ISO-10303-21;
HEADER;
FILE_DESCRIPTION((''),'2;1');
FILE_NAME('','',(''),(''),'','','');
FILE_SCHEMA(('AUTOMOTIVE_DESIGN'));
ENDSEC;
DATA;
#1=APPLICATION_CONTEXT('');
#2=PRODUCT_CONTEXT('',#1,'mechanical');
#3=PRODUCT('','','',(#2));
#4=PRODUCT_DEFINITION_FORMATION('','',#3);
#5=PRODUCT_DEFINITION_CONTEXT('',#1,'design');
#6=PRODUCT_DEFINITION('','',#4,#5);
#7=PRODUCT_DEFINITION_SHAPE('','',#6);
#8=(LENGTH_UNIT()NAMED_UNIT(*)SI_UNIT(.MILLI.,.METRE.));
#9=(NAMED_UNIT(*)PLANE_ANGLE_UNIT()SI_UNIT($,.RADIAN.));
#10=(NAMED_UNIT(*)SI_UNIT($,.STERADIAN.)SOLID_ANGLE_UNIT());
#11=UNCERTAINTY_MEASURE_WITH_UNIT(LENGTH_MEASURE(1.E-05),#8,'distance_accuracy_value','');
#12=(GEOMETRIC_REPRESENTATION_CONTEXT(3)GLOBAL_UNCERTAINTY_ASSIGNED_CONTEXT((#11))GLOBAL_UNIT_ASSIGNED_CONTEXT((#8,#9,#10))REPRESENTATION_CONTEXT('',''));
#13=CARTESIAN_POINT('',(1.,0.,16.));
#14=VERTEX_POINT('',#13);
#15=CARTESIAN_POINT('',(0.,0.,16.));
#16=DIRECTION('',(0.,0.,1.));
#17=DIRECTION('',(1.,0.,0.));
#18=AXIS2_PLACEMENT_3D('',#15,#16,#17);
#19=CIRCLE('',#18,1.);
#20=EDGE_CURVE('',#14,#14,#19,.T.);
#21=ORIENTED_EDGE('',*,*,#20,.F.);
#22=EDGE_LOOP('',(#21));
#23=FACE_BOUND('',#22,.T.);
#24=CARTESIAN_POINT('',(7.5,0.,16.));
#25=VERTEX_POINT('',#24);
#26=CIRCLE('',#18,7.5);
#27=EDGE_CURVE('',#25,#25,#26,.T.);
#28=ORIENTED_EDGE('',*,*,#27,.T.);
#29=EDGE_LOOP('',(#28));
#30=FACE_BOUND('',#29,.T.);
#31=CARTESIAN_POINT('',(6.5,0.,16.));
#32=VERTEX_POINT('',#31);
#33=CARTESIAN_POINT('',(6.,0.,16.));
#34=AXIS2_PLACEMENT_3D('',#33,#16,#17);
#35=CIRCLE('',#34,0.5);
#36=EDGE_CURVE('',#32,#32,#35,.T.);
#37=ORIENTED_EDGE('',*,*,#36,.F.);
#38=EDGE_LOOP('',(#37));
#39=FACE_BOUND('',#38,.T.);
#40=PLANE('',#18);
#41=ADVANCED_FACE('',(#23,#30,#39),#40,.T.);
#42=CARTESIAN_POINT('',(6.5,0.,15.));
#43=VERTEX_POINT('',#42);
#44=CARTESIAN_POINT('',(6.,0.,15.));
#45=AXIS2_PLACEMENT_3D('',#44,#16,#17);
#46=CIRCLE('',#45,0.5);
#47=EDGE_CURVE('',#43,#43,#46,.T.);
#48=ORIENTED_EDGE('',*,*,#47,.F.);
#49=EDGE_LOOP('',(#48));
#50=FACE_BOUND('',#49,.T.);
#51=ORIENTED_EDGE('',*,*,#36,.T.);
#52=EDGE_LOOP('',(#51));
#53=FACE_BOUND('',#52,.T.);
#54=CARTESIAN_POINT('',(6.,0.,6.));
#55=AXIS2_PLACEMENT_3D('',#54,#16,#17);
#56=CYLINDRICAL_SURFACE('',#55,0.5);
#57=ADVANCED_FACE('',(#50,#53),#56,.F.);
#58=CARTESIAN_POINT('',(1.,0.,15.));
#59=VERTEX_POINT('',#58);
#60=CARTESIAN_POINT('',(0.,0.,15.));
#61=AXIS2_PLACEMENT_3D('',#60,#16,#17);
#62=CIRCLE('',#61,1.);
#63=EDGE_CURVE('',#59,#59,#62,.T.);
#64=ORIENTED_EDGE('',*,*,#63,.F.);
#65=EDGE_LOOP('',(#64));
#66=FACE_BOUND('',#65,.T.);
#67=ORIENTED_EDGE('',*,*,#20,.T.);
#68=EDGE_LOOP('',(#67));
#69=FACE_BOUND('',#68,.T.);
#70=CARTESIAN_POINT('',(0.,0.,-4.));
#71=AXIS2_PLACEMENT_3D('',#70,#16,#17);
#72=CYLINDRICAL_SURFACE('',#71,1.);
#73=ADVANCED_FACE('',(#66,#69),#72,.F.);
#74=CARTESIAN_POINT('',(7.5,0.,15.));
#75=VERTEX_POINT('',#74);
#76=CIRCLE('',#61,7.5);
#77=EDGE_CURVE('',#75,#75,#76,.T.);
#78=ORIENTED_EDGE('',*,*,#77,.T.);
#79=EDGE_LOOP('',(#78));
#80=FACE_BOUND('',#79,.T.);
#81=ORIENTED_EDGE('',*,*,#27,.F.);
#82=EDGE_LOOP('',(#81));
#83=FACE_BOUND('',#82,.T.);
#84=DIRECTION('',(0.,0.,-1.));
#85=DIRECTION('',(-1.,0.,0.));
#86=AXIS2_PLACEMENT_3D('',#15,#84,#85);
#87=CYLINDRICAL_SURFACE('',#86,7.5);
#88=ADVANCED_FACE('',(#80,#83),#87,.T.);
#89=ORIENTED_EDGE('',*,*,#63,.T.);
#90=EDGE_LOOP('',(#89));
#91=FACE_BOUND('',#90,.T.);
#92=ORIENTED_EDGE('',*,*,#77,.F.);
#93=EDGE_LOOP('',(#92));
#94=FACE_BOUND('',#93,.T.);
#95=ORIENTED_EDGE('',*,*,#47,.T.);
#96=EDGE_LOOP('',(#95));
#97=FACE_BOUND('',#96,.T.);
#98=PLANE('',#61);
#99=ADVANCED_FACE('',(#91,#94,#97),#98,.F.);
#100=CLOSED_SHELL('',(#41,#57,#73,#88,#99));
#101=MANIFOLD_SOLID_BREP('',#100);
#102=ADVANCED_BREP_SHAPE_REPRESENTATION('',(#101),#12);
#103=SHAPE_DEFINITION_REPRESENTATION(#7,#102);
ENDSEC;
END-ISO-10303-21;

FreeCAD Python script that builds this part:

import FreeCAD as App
import Part
import Sketcher

V = App.Vector
Q = App.Units.Quantity

doc = App.newDocument("Part")
params = doc.addObject("Spreadsheet::Sheet", "Params")
for row, (alias, value) in enumerate([
    ("sketch1_diameter", "2 mm"),
    ("pad1_length", "15 mm"),
    ("sketch2_diameter", "15 mm"),
    ("pad2_length", "1 mm"),
    ("sketch3_diameter", "1 mm"),
    ("pocket1_length", "10 mm"),
    ("sketch4_diameter", "2 mm"),
    ("pocket2_length", "20 mm"),
], start=1):
    params.set(f"A{row}", alias)
    params.set(f"B{row}", "=" + value)
    params.setAlias(f"B{row}", alias)

body = doc.addObject("PartDesign::Body", "Body")

sketch1 = body.newObject("Sketcher::SketchObject", "Sketch")
sketch1.AttachmentSupport = (doc.getObject("XY_Plane"), [""])
sketch1.MapMode = "FlatFace"
sketch1.addGeometry(Part.Circle(V(0, 0, 0), V(0, 0, 1), 1), False)
sketch1.addConstraint(Sketcher.Constraint("Coincident", 0, 3, -1, 1))
sketch1.addConstraint(Sketcher.Constraint("Diameter", 0, Q("2 mm")))
sketch1.setExpression("Constraints[1]", "Params.sketch1_diameter")
pad1 = body.newObject("PartDesign::Pad", "Pad")
pad1.Profile = sketch1
pad1.setExpression("Length", "Params.pad1_length")

sketch2 = body.newObject("Sketcher::SketchObject", "Sketch001")
sketch2.AttachmentSupport = (doc.getObject("XY_Plane"), [""])
sketch2.MapMode = "FlatFace"
sketch2.AttachmentOffset = App.Placement(V(0, 0, 15), App.Rotation())
sketch2.addGeometry(Part.Circle(V(0, 0, 0), V(0, 0, 1), 8), False)
sketch2.addConstraint(Sketcher.Constraint("Coincident", 0, 3, -1, 1))
sketch2.addConstraint(Sketcher.Constraint("Diameter", 0, Q("15 mm")))
sketch2.setExpression("Constraints[1]", "Params.sketch2_diameter")
pad2 = body.newObject("PartDesign::Pad", "Pad001")
pad2.Profile = sketch2
pad2.setExpression("Length", "Params.pad2_length")

sketch3 = body.newObject("Sketcher::SketchObject", "Sketch002")
sketch3.AttachmentSupport = (doc.getObject("XY_Plane"), [""])
sketch3.MapMode = "FlatFace"
sketch3.AttachmentOffset = App.Placement(V(0, 0, 16), App.Rotation())
sketch3.addGeometry(Part.Circle(V(6, 0, 0), V(0, 0, 1), 0.5), False)
sketch3.addConstraint(Sketcher.Constraint("PointOnObject", 0, 3, -1))
sketch3.addConstraint(Sketcher.Constraint("Diameter", 0, Q("1 mm")))
sketch3.addConstraint(Sketcher.Constraint("DistanceX", -1, 1, 0, 3, Q("6 mm")))
sketch3.setExpression("Constraints[1]", "Params.sketch3_diameter")
pocket1 = body.newObject("PartDesign::Pocket", "Pocket")
pocket1.Profile = sketch3
pocket1.setExpression("Length", "Params.pocket1_length")

sketch4 = body.newObject("Sketcher::SketchObject", "Sketch003")
sketch4.AttachmentSupport = (doc.getObject("XY_Plane"), [""])
sketch4.MapMode = "FlatFace"
sketch4.AttachmentOffset = App.Placement(V(0, 0, 16), App.Rotation())
sketch4.addGeometry(Part.Circle(V(0, 0, 0), V(0, 0, 1), 1), False)
sketch4.addConstraint(Sketcher.Constraint("Coincident", 0, 3, -1, 1))
sketch4.addConstraint(Sketcher.Constraint("Diameter", 0, Q("2 mm")))
sketch4.setExpression("Constraints[1]", "Params.sketch4_diameter")
pocket2 = body.newObject("PartDesign::Pocket", "Pocket001")
pocket2.Profile = sketch4
pocket2.setExpression("Length", "Params.pocket2_length")

doc.recompute()
